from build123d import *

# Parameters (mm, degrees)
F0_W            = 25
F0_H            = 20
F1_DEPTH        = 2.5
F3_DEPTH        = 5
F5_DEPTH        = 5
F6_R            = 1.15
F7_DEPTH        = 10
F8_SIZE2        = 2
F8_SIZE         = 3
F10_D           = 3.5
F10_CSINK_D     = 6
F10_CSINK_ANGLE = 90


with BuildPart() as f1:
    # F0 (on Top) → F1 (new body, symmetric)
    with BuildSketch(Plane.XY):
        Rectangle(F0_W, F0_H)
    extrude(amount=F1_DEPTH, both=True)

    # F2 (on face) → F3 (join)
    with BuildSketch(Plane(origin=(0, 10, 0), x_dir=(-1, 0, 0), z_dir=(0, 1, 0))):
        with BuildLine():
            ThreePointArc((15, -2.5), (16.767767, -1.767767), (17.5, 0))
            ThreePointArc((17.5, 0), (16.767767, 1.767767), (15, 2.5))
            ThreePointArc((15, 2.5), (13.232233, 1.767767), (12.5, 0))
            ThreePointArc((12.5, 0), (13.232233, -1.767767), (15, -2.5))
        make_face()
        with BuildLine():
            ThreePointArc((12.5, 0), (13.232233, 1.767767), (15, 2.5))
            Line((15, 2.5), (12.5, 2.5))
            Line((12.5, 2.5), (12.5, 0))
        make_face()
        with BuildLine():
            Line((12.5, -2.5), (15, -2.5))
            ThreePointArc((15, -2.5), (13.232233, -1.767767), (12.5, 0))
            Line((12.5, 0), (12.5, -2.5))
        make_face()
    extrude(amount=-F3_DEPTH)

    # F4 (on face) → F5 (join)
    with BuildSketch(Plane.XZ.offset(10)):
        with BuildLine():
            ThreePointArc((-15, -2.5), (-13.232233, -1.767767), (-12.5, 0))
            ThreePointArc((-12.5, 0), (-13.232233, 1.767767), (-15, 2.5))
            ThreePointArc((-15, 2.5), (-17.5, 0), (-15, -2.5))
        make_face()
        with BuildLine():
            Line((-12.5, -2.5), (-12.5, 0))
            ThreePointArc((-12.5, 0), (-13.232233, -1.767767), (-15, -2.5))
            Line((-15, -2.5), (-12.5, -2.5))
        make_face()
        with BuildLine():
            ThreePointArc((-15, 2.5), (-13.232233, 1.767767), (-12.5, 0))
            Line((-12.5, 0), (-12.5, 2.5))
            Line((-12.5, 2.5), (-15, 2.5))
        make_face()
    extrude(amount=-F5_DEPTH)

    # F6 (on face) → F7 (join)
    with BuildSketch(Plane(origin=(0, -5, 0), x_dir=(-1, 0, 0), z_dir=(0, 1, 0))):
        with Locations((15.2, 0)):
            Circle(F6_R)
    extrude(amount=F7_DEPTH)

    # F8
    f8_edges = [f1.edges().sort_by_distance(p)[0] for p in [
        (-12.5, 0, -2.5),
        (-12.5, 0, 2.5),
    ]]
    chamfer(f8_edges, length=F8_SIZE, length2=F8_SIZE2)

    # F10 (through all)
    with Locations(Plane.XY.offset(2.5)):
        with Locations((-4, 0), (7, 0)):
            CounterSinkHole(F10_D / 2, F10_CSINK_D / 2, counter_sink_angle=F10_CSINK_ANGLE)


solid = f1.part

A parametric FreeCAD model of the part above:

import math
import FreeCAD as App
import Part
import Sketcher

V = App.Vector


def edges_at(feature, points):
    """Names of the edges that pass closest to the given points."""
    edges = feature.Shape.Edges
    near = lambda p: min(range(len(edges)), key=lambda i: edges[i].distToShape(Part.Vertex(*p))[0])
    return sorted({f"Edge{near(p) + 1}" for p in points})


def add_polygon(sketch, points):
    """Adds a closed chain of lines whose ends are joined by coincident constraints."""
    first, n = sketch.GeometryCount, len(points)
    for a, b in zip(points, points[1:] + points[:1]):
        sketch.addGeometry(Part.LineSegment(App.Vector(*a, 0), App.Vector(*b, 0)), False)
    for i in range(n):
        sketch.addConstraint(Sketcher.Constraint("Coincident", first + i, 2, first + (i + 1) % n, 1))

doc = App.newDocument("Part")
body = doc.addObject("PartDesign::Body", "Body")

sketch1 = body.newObject("Sketcher::SketchObject", "Sketch")
sketch1.AttachmentSupport = (doc.getObject("XY_Plane"), [""])
sketch1.MapMode = "FlatFace"
add_polygon(sketch1, [(-12, 10), (-12, -10), (12, -10), (12, 10)])
sketch1.addConstraint(Sketcher.Constraint("Vertical", 0))
sketch1.addConstraint(Sketcher.Constraint("Horizontal", 1))
sketch1.addConstraint(Sketcher.Constraint("Vertical", 2))
sketch1.addConstraint(Sketcher.Constraint("Horizontal", 3))
sketch1.addConstraint(Sketcher.Constraint("Symmetric", 0, 2, 2, 2, -1, 1))
sketch1.addConstraint(Sketcher.Constraint("DistanceX", 1, 1, 1, 2, 25.0))
sketch1.addConstraint(Sketcher.Constraint("DistanceY", 0, 2, 0, 1, 20.0))
pad1 = body.newObject("PartDesign::Pad", "Pad")
pad1.Profile = sketch1
pad1.Length = 5
pad1.Midplane = True

sketch2 = body.newObject("Sketcher::SketchObject", "Sketch001")
sketch2.AttachmentSupport = (doc.getObject("XZ_Plane"), [""])
sketch2.MapMode = "FlatFace"
sketch2.AttachmentOffset = App.Placement(V(0, 0, -10), App.Rotation())
sketch2.addGeometry(Part.ArcOfCircle(Part.Circle(V(-15, 0, 0), V(0, 0, 1), 2.5), math.radians(180), math.radians(270)), False)
sketch2.addGeometry(Part.ArcOfCircle(Part.Circle(V(-15, 0, 0), V(0, 0, 1), 2.5), math.radians(90), math.radians(180)), False)
sketch2.addGeometry(Part.LineSegment(V(-15, 2.5, 0), V(-12.5, 2.5, 0)), False)
sketch2.addGeometry(Part.LineSegment(V(-12.5, 2.5, 0), V(-12.5, -2.5, 0)), False)
sketch2.addGeometry(Part.LineSegment(V(-12.5, -2.5, 0), V(-15, -2.5, 0)), False)
sketch2.addConstraint(Sketcher.Constraint("Tangent", 0, 1, 1, 2))
sketch2.addConstraint(Sketcher.Constraint("Tangent", 1, 1, 2, 1))
sketch2.addConstraint(Sketcher.Constraint("Coincident", 2, 2, 3, 1))
sketch2.addConstraint(Sketcher.Constraint("Coincident", 3, 2, 4, 1))
sketch2.addConstraint(Sketcher.Constraint("Tangent", 4, 2, 0, 2))
sketch2.addConstraint(Sketcher.Constraint("Horizontal", 2))
sketch2.addConstraint(Sketcher.Constraint("Vertical", 3))
sketch2.addConstraint(Sketcher.Constraint("Horizontal", 4))
sketch2.addConstraint(Sketcher.Constraint("Equal", 0, 1))
sketch2.addConstraint(Sketcher.Constraint("PointOnObject", 0, 3, -1))
sketch2.addConstraint(Sketcher.Constraint("PointOnObject", 0, 1, -1))
sketch2.addConstraint(Sketcher.Constraint("Radius", 0, 2.5))
sketch2.addConstraint(Sketcher.Constraint("DistanceX", 2, 1, 2, 2, 2.5))
sketch2.addConstraint(Sketcher.Constraint("DistanceX", 0, 3, -1, 1, 15.0))
pad2 = body.newObject("PartDesign::Pad", "Pad001")
pad2.Profile = sketch2
pad2.Length = 5

sketch3 = body.newObject("Sketcher::SketchObject", "Sketch002")
sketch3.AttachmentSupport = (doc.getObject("XZ_Plane"), [""])
sketch3.MapMode = "FlatFace"
sketch3.AttachmentOffset = App.Placement(V(0, 0, 10), App.Rotation())
sketch3.addGeometry(Part.ArcOfCircle(Part.Circle(V(-15, 0, 0), V(0, 0, 1), 2.5), math.radians(90), math.radians(270)), False)
sketch3.addGeometry(Part.LineSegment(V(-15, -2.5, 0), V(-12.5, -2.5, 0)), False)
sketch3.addGeometry(Part.LineSegment(V(-12.5, -2.5, 0), V(-12.5, 2.5, 0)), False)
sketch3.addGeometry(Part.LineSegment(V(-12.5, 2.5, 0), V(-15, 2.5, 0)), False)
sketch3.addConstraint(Sketcher.Constraint("Tangent", 0, 2, 1, 1))
sketch3.addConstraint(Sketcher.Constraint("Coincident", 1, 2, 2, 1))
sketch3.addConstraint(Sketcher.Constraint("Coincident", 2, 2, 3, 1))
sketch3.addConstraint(Sketcher.Constraint("Tangent", 3, 2, 0, 1))
sketch3.addConstraint(Sketcher.Constraint("Horizontal", 1))
sketch3.addConstraint(Sketcher.Constraint("Vertical", 2))
sketch3.addConstraint(Sketcher.Constraint("Horizontal", 3))
sketch3.addConstraint(Sketcher.Constraint("PointOnObject", 0, 3, -1))
sketch3.addConstraint(Sketcher.Constraint("Radius", 0, 2.5))
sketch3.addConstraint(Sketcher.Constraint("DistanceX", 1, 1, 1, 2, 2.5))
sketch3.addConstraint(Sketcher.Constraint("DistanceX", 0, 3, -1, 1, 15.0))
pad3 = body.newObject("PartDesign::Pad", "Pad002")
pad3.Profile = sketch3
pad3.Length = 5
pad3.Reversed = True

sketch4 = body.newObject("Sketcher::SketchObject", "Sketch003")
sketch4.AttachmentSupport = (doc.getObject("XZ_Plane"), [""])
sketch4.MapMode = "FlatFace"
sketch4.AttachmentOffset = App.Placement(V(0, 0, 5), App.Rotation())
sketch4.addGeometry(Part.Circle(V(-15.2, 0, 0), V(0, 0, 1), 1.1), False)
sketch4.addConstraint(Sketcher.Constraint("PointOnObject", 0, 3, -1))
sketch4.addConstraint(Sketcher.Constraint("Diameter", 0, 2.3))
sketch4.addConstraint(Sketcher.Constraint("DistanceX", 0, 3, -1, 1, 15.2))
pad4 = body.newObject("PartDesign::Pad", "Pad003")
pad4.Profile = sketch4
pad4.Length = 10
pad4.Reversed = True
doc.recompute()

chamfer = body.newObject("PartDesign::Chamfer", "Chamfer")
chamfer.Base = (pad4, edges_at(pad4, [(-12.5, 0, -2.5), (-12.5, 0, 2.5)]))
chamfer.ChamferType = "Two distances"
chamfer.Size = 3
chamfer.Size2 = 2
chamfer.FlipDirection = True

sketch5 = body.newObject("Sketcher::SketchObject", "Sketch004")
sketch5.AttachmentSupport = (doc.getObject("XY_Plane"), [""])
sketch5.MapMode = "FlatFace"
sketch5.AttachmentOffset = App.Placement(V(0, 0, 2.5), App.Rotation())
sketch5.addGeometry(Part.Circle(V(-4, 0, 0), V(0, 0, 1), 1.8), False)
sketch5.addGeometry(Part.Circle(V(7, 0, 0), V(0, 0, 1), 1.8), False)
sketch5.addConstraint(Sketcher.Constraint("Equal", 0, 1))
sketch5.addConstraint(Sketcher.Constraint("PointOnObject", 0, 3, -1))
sketch5.addConstraint(Sketcher.Constraint("PointOnObject", 1, 3, -1))
sketch5.addConstraint(Sketcher.Constraint("Diameter", 0, 3.5))
sketch5.addConstraint(Sketcher.Constraint("DistanceX", 0, 3, -1, 1, 4.0))
sketch5.addConstraint(Sketcher.Constraint("DistanceX", -1, 1, 1, 3, 7.0))
doc.recompute()
hole = body.newObject("PartDesign::Hole", "Hole")
hole.Profile = sketch5
hole.ThreadType = "None"
hole.Diameter = 3.5
hole.DepthType = "ThroughAll"
hole.HoleCutType = "Countersink"
hole.HoleCutDiameter = 6
hole.HoleCutCountersinkAngle = 90

doc.recompute()
